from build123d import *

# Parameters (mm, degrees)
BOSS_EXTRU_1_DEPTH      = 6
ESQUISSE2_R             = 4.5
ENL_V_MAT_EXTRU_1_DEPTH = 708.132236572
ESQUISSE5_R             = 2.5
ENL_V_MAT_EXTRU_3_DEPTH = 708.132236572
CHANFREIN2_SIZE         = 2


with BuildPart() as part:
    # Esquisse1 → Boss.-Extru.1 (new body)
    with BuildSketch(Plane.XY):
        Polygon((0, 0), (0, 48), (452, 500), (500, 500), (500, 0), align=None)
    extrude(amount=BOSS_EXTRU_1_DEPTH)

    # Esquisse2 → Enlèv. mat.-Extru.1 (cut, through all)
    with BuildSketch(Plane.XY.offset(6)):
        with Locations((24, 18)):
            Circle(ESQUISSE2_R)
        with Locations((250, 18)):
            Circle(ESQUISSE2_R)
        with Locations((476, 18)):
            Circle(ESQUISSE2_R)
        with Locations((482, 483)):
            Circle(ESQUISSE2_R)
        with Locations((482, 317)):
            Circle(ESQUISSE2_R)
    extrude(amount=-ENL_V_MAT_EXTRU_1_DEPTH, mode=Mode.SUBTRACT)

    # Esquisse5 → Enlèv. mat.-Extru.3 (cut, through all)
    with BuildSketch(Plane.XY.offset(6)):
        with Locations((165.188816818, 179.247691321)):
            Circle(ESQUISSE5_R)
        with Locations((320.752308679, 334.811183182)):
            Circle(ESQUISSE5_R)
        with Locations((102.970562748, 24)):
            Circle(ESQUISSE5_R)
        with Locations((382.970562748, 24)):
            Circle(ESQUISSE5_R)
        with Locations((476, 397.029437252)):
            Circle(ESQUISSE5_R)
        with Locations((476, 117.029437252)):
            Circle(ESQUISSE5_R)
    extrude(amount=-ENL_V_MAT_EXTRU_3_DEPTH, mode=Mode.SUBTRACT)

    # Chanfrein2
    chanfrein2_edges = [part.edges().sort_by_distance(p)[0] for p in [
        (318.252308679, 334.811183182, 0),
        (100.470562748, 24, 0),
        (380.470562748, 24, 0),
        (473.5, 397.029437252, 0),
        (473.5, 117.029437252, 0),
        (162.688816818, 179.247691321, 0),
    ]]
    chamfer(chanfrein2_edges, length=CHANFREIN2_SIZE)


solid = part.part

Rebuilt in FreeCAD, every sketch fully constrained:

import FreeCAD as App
import Part
import Sketcher

V = App.Vector


def edges_at(feature, points):
    """Names of the edges that pass closest to the given points."""
    edges = feature.Shape.Edges
    near = lambda p: min(range(len(edges)), key=lambda i: edges[i].distToShape(Part.Vertex(*p))[0])
    return sorted({f"Edge{near(p) + 1}" for p in points})


def add_polygon(sketch, points):
    """Adds a closed chain of lines whose ends are joined by coincident constraints."""
    first, n = sketch.GeometryCount, len(points)
    for a, b in zip(points, points[1:] + points[:1]):
        sketch.addGeometry(Part.LineSegment(App.Vector(*a, 0), App.Vector(*b, 0)), False)
    for i in range(n):
        sketch.addConstraint(Sketcher.Constraint("Coincident", first + i, 2, first + (i + 1) % n, 1))

doc = App.newDocument("Part")
params = doc.addObject("Spreadsheet::Sheet", "Params")
for row, (alias, value) in enumerate([
    ("sketch1_width", "500 mm"),
    ("sketch1_width2", "48 mm"),
    ("pad1_length", "6 mm"),
    ("sketch2_diameter", "9 mm"),
    ("sketch3_diameter", "5 mm"),
    ("chamfer_size", "2 mm"),
], start=1):
    params.set(f"A{row}", alias)
    params.set(f"B{row}", "=" + value)
    params.setAlias(f"B{row}", alias)

body = doc.addObject("PartDesign::Body", "Body")

# Sketch on XY plane
sketch1 = body.newObject("Sketcher::SketchObject", "Sketch")
sketch1.AttachmentSupport = (doc.getObject("XY_Plane"), [""])
sketch1.MapMode = "FlatFace"
add_polygon(sketch1, [(0, 48), (0, 0), (500, 0), (500, 500), (452, 500)])  # lines 0-4
sketch1.addConstraint([
    Sketcher.Constraint("Vertical", 0),
    Sketcher.Constraint("Horizontal", 1),
    Sketcher.Constraint("Vertical", 2),
    Sketcher.Constraint("Horizontal", 3),
    Sketcher.Constraint("Coincident", 0, 2, -1, 1),
    Sketcher.Constraint("Equal", 3, 0),
    Sketcher.Constraint("Equal", 1, 2),
    Sketcher.Constraint("DistanceX", 1, 1, 1, 2, 500.0),
    Sketcher.Constraint("DistanceX", 3, 2, 3, 1, 48.0),
])
sketch1.setExpression("Constraints[12]", "Params.sketch1_width")
sketch1.setExpression("Constraints[13]", "Params.sketch1_width2")
pad1 = body.newObject("PartDesign::Pad", "Pad")
pad1.Profile = sketch1
pad1.setExpression("Length", "Params.pad1_length")

# Sketch on XY plane
sketch2 = body.newObject("Sketcher::SketchObject", "Sketch001")
sketch2.AttachmentSupport = (doc.getObject("XY_Plane"), [""])
sketch2.MapMode = "FlatFace"
sketch2.AttachmentOffset = App.Placement(V(0, 0, 6), App.Rotation())
sketch2.addGeometry([
    Part.Circle(V(24, 18, 0), V(0, 0, 1), 4.5),  # 0
    Part.Circle(V(250, 18, 0), V(0, 0, 1), 4.5),  # 1
    Part.Circle(V(476, 18, 0), V(0, 0, 1), 4.5),  # 2
    Part.Circle(V(482, 483, 0), V(0, 0, 1), 4.5),  # 3
    Part.Circle(V(482, 317, 0), V(0, 0, 1), 4.5),  # 4
], False)
sketch2.addConstraint([
    Sketcher.Constraint("Equal", 0, 1),
    Sketcher.Constraint("Equal", 1, 2),
    Sketcher.Constraint("Equal", 2, 3),
    Sketcher.Constraint("Equal", 3, 4),
    Sketcher.Constraint("Horizontal", 0, 3, 1, 3),
    Sketcher.Constraint("Horizontal", 1, 3, 2, 3),
    Sketcher.Constraint("Vertical", 3, 3, 4, 3),
    Sketcher.Constraint("Diameter", 0, 9.0),
    Sketcher.Constraint("DistanceX", -1, 1, 0, 3, 24.0),
    Sketcher.Constraint("DistanceY", -1, 1, 0, 3, 18.0),
    Sketcher.Constraint("DistanceX", -1, 1, 1, 3, 250.0),
    Sketcher.Constraint("DistanceX", -1, 1, 2, 3, 476.0),
    Sketcher.Constraint("DistanceX", -1, 1, 3, 3, 482.0),
    Sketcher.Constraint("DistanceY", -1, 1, 3, 3, 483.0),
    Sketcher.Constraint("DistanceY", -1, 1, 4, 3, 317.0),
])
sketch2.setExpression("Constraints[7]", "Params.sketch2_diameter")
pocket1 = body.newObject("PartDesign::Pocket", "Pocket")
pocket1.Profile = sketch2
pocket1.Type = "ThroughAll"

# Sketch on XY plane
sketch3 = body.newObject("Sketcher::SketchObject", "Sketch002")
sketch3.AttachmentSupport = (doc.getObject("XY_Plane"), [""])
sketch3.MapMode = "FlatFace"
sketch3.AttachmentOffset = App.Placement(V(0, 0, 6), App.Rotation())
sketch3.addGeometry([
    Part.Circle(V(165.2, 179.2, 0), V(0, 0, 1), 2.5),  # 0
    Part.Circle(V(320.8, 334.8, 0), V(0, 0, 1), 2.5),  # 1
    Part.Circle(V(103, 24, 0), V(0, 0, 1), 2.5),  # 2
    Part.Circle(V(383, 24, 0), V(0, 0, 1), 2.5),  # 3
    Part.Circle(V(476, 397, 0), V(0, 0, 1), 2.5),  # 4
    Part.Circle(V(476, 117, 0), V(0, 0, 1), 2.5),  # 5
], False)
sketch3.addConstraint([
    Sketcher.Constraint("Equal", 0, 1),
    Sketcher.Constraint("Equal", 1, 2),
    Sketcher.Constraint("Equal", 2, 3),
    Sketcher.Constraint("Equal", 3, 4),
    Sketcher.Constraint("Equal", 4, 5),
    Sketcher.Constraint("Horizontal", 2, 3, 3, 3),
    Sketcher.Constraint("Vertical", 4, 3, 5, 3),
    Sketcher.Constraint("Diameter", 0, 5.0),
    Sketcher.Constraint("DistanceY", -1, 1, 2, 3, 24.0),
    Sketcher.Constraint("DistanceX", -1, 1, 4, 3, 476.0),
    Sketcher.Constraint("DistanceX", 2, 3, 3, 3, 280.0),
    Sketcher.Constraint("DistanceY", 5, 3, 4, 3, 280.0),
    Sketcher.Constraint("DistanceY", -1, 1, 0, 3, 179.247691),
    Sketcher.Constraint("DistanceX", -1, 1, 1, 3, 320.752309),
    Sketcher.Constraint("DistanceX", 0, 3, 1, 3, 155.563492),
    Sketcher.Constraint("DistanceY", 0, 3, 1, 3, 155.563492),
    Sketcher.Constraint("DistanceX", -1, 1, 2, 3, 102.970563),
    Sketcher.Constraint("DistanceY", -1, 1, 4, 3, 397.029437),
])
sketch3.setExpression("Constraints[7]", "Params.sketch3_diameter")
pocket2 = body.newObject("PartDesign::Pocket", "Pocket001")
pocket2.Profile = sketch3
pocket2.Type = "ThroughAll"
doc.recompute()

chamfer = body.newObject("PartDesign::Chamfer", "Chamfer")
chamfer.Base = (pocket2, edges_at(pocket2, [
    (318.252, 334.811, 0),
    (100.471, 24, 0),
    (380.471, 24, 0),
    (473.5, 397.029, 0),
    (473.5, 117.029, 0),
    (162.689, 179.248, 0),
]))
chamfer.setExpression("Size", "Params.chamfer_size")

doc.recompute()
